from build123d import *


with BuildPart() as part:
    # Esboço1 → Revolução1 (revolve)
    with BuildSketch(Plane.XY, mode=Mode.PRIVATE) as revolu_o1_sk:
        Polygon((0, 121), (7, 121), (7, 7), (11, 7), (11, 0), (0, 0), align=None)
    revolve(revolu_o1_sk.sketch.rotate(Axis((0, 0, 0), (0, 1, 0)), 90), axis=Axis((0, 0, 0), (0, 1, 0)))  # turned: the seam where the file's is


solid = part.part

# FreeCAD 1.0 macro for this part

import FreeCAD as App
import Part
import Sketcher
from FreeCAD import Vector
Q = App.Units.Quantity


def add_polygon(sketch, points):
    """Adds a closed chain of lines whose ends are joined by coincident constraints."""
    first, n = sketch.GeometryCount, len(points)
    for a, b in zip(points, points[1:] + points[:1]):
        sketch.addGeometry(Part.LineSegment(App.Vector(*a, 0), App.Vector(*b, 0)), False)
    for i in range(n):
        sketch.addConstraint(Sketcher.Constraint("Coincident", first + i, 2, first + (i + 1) % n, 1))

doc = App.newDocument("Part")
body = doc.addObject("PartDesign::Body", "Body")

sketch1 = body.newObject("Sketcher::SketchObject", "Sketch")
sketch1.AttachmentSupport = (doc.getObject("XY_Plane"), [""])
sketch1.MapMode = "FlatFace"
add_polygon(sketch1, [(7, 121), (0, 121), (0, 0), (11, 0), (11, 7), (7, 7)])
sketch1.addConstraint(Sketcher.Constraint("Horizontal", 0))
sketch1.addConstraint(Sketcher.Constraint("Vertical", 1))
sketch1.addConstraint(Sketcher.Constraint("Horizontal", 2))
sketch1.addConstraint(Sketcher.Constraint("Vertical", 3))
sketch1.addConstraint(Sketcher.Constraint("Horizontal", 4))
sketch1.addConstraint(Sketcher.Constraint("Vertical", 5))
sketch1.addConstraint(Sketcher.Constraint("Coincident", 1, 2, -1, 1))
sketch1.addConstraint(Sketcher.Constraint("Equal", 0, 3))
sketch1.addConstraint(Sketcher.Constraint("DistanceX", 0, 2, 0, 1, Q("7 mm")))
sketch1.addConstraint(Sketcher.Constraint("DistanceX", 2, 1, 2, 2, Q("11 mm")))
sketch1.addConstraint(Sketcher.Constraint("DistanceY", 1, 2, 1, 1, Q("121 mm")))
revolution = body.newObject("PartDesign::Revolution", "Revolution")
revolution.Profile = sketch1
revolution.ReferenceAxis = (sketch1, ["V_Axis"])
revolution.Angle = 360

doc.recompute()
